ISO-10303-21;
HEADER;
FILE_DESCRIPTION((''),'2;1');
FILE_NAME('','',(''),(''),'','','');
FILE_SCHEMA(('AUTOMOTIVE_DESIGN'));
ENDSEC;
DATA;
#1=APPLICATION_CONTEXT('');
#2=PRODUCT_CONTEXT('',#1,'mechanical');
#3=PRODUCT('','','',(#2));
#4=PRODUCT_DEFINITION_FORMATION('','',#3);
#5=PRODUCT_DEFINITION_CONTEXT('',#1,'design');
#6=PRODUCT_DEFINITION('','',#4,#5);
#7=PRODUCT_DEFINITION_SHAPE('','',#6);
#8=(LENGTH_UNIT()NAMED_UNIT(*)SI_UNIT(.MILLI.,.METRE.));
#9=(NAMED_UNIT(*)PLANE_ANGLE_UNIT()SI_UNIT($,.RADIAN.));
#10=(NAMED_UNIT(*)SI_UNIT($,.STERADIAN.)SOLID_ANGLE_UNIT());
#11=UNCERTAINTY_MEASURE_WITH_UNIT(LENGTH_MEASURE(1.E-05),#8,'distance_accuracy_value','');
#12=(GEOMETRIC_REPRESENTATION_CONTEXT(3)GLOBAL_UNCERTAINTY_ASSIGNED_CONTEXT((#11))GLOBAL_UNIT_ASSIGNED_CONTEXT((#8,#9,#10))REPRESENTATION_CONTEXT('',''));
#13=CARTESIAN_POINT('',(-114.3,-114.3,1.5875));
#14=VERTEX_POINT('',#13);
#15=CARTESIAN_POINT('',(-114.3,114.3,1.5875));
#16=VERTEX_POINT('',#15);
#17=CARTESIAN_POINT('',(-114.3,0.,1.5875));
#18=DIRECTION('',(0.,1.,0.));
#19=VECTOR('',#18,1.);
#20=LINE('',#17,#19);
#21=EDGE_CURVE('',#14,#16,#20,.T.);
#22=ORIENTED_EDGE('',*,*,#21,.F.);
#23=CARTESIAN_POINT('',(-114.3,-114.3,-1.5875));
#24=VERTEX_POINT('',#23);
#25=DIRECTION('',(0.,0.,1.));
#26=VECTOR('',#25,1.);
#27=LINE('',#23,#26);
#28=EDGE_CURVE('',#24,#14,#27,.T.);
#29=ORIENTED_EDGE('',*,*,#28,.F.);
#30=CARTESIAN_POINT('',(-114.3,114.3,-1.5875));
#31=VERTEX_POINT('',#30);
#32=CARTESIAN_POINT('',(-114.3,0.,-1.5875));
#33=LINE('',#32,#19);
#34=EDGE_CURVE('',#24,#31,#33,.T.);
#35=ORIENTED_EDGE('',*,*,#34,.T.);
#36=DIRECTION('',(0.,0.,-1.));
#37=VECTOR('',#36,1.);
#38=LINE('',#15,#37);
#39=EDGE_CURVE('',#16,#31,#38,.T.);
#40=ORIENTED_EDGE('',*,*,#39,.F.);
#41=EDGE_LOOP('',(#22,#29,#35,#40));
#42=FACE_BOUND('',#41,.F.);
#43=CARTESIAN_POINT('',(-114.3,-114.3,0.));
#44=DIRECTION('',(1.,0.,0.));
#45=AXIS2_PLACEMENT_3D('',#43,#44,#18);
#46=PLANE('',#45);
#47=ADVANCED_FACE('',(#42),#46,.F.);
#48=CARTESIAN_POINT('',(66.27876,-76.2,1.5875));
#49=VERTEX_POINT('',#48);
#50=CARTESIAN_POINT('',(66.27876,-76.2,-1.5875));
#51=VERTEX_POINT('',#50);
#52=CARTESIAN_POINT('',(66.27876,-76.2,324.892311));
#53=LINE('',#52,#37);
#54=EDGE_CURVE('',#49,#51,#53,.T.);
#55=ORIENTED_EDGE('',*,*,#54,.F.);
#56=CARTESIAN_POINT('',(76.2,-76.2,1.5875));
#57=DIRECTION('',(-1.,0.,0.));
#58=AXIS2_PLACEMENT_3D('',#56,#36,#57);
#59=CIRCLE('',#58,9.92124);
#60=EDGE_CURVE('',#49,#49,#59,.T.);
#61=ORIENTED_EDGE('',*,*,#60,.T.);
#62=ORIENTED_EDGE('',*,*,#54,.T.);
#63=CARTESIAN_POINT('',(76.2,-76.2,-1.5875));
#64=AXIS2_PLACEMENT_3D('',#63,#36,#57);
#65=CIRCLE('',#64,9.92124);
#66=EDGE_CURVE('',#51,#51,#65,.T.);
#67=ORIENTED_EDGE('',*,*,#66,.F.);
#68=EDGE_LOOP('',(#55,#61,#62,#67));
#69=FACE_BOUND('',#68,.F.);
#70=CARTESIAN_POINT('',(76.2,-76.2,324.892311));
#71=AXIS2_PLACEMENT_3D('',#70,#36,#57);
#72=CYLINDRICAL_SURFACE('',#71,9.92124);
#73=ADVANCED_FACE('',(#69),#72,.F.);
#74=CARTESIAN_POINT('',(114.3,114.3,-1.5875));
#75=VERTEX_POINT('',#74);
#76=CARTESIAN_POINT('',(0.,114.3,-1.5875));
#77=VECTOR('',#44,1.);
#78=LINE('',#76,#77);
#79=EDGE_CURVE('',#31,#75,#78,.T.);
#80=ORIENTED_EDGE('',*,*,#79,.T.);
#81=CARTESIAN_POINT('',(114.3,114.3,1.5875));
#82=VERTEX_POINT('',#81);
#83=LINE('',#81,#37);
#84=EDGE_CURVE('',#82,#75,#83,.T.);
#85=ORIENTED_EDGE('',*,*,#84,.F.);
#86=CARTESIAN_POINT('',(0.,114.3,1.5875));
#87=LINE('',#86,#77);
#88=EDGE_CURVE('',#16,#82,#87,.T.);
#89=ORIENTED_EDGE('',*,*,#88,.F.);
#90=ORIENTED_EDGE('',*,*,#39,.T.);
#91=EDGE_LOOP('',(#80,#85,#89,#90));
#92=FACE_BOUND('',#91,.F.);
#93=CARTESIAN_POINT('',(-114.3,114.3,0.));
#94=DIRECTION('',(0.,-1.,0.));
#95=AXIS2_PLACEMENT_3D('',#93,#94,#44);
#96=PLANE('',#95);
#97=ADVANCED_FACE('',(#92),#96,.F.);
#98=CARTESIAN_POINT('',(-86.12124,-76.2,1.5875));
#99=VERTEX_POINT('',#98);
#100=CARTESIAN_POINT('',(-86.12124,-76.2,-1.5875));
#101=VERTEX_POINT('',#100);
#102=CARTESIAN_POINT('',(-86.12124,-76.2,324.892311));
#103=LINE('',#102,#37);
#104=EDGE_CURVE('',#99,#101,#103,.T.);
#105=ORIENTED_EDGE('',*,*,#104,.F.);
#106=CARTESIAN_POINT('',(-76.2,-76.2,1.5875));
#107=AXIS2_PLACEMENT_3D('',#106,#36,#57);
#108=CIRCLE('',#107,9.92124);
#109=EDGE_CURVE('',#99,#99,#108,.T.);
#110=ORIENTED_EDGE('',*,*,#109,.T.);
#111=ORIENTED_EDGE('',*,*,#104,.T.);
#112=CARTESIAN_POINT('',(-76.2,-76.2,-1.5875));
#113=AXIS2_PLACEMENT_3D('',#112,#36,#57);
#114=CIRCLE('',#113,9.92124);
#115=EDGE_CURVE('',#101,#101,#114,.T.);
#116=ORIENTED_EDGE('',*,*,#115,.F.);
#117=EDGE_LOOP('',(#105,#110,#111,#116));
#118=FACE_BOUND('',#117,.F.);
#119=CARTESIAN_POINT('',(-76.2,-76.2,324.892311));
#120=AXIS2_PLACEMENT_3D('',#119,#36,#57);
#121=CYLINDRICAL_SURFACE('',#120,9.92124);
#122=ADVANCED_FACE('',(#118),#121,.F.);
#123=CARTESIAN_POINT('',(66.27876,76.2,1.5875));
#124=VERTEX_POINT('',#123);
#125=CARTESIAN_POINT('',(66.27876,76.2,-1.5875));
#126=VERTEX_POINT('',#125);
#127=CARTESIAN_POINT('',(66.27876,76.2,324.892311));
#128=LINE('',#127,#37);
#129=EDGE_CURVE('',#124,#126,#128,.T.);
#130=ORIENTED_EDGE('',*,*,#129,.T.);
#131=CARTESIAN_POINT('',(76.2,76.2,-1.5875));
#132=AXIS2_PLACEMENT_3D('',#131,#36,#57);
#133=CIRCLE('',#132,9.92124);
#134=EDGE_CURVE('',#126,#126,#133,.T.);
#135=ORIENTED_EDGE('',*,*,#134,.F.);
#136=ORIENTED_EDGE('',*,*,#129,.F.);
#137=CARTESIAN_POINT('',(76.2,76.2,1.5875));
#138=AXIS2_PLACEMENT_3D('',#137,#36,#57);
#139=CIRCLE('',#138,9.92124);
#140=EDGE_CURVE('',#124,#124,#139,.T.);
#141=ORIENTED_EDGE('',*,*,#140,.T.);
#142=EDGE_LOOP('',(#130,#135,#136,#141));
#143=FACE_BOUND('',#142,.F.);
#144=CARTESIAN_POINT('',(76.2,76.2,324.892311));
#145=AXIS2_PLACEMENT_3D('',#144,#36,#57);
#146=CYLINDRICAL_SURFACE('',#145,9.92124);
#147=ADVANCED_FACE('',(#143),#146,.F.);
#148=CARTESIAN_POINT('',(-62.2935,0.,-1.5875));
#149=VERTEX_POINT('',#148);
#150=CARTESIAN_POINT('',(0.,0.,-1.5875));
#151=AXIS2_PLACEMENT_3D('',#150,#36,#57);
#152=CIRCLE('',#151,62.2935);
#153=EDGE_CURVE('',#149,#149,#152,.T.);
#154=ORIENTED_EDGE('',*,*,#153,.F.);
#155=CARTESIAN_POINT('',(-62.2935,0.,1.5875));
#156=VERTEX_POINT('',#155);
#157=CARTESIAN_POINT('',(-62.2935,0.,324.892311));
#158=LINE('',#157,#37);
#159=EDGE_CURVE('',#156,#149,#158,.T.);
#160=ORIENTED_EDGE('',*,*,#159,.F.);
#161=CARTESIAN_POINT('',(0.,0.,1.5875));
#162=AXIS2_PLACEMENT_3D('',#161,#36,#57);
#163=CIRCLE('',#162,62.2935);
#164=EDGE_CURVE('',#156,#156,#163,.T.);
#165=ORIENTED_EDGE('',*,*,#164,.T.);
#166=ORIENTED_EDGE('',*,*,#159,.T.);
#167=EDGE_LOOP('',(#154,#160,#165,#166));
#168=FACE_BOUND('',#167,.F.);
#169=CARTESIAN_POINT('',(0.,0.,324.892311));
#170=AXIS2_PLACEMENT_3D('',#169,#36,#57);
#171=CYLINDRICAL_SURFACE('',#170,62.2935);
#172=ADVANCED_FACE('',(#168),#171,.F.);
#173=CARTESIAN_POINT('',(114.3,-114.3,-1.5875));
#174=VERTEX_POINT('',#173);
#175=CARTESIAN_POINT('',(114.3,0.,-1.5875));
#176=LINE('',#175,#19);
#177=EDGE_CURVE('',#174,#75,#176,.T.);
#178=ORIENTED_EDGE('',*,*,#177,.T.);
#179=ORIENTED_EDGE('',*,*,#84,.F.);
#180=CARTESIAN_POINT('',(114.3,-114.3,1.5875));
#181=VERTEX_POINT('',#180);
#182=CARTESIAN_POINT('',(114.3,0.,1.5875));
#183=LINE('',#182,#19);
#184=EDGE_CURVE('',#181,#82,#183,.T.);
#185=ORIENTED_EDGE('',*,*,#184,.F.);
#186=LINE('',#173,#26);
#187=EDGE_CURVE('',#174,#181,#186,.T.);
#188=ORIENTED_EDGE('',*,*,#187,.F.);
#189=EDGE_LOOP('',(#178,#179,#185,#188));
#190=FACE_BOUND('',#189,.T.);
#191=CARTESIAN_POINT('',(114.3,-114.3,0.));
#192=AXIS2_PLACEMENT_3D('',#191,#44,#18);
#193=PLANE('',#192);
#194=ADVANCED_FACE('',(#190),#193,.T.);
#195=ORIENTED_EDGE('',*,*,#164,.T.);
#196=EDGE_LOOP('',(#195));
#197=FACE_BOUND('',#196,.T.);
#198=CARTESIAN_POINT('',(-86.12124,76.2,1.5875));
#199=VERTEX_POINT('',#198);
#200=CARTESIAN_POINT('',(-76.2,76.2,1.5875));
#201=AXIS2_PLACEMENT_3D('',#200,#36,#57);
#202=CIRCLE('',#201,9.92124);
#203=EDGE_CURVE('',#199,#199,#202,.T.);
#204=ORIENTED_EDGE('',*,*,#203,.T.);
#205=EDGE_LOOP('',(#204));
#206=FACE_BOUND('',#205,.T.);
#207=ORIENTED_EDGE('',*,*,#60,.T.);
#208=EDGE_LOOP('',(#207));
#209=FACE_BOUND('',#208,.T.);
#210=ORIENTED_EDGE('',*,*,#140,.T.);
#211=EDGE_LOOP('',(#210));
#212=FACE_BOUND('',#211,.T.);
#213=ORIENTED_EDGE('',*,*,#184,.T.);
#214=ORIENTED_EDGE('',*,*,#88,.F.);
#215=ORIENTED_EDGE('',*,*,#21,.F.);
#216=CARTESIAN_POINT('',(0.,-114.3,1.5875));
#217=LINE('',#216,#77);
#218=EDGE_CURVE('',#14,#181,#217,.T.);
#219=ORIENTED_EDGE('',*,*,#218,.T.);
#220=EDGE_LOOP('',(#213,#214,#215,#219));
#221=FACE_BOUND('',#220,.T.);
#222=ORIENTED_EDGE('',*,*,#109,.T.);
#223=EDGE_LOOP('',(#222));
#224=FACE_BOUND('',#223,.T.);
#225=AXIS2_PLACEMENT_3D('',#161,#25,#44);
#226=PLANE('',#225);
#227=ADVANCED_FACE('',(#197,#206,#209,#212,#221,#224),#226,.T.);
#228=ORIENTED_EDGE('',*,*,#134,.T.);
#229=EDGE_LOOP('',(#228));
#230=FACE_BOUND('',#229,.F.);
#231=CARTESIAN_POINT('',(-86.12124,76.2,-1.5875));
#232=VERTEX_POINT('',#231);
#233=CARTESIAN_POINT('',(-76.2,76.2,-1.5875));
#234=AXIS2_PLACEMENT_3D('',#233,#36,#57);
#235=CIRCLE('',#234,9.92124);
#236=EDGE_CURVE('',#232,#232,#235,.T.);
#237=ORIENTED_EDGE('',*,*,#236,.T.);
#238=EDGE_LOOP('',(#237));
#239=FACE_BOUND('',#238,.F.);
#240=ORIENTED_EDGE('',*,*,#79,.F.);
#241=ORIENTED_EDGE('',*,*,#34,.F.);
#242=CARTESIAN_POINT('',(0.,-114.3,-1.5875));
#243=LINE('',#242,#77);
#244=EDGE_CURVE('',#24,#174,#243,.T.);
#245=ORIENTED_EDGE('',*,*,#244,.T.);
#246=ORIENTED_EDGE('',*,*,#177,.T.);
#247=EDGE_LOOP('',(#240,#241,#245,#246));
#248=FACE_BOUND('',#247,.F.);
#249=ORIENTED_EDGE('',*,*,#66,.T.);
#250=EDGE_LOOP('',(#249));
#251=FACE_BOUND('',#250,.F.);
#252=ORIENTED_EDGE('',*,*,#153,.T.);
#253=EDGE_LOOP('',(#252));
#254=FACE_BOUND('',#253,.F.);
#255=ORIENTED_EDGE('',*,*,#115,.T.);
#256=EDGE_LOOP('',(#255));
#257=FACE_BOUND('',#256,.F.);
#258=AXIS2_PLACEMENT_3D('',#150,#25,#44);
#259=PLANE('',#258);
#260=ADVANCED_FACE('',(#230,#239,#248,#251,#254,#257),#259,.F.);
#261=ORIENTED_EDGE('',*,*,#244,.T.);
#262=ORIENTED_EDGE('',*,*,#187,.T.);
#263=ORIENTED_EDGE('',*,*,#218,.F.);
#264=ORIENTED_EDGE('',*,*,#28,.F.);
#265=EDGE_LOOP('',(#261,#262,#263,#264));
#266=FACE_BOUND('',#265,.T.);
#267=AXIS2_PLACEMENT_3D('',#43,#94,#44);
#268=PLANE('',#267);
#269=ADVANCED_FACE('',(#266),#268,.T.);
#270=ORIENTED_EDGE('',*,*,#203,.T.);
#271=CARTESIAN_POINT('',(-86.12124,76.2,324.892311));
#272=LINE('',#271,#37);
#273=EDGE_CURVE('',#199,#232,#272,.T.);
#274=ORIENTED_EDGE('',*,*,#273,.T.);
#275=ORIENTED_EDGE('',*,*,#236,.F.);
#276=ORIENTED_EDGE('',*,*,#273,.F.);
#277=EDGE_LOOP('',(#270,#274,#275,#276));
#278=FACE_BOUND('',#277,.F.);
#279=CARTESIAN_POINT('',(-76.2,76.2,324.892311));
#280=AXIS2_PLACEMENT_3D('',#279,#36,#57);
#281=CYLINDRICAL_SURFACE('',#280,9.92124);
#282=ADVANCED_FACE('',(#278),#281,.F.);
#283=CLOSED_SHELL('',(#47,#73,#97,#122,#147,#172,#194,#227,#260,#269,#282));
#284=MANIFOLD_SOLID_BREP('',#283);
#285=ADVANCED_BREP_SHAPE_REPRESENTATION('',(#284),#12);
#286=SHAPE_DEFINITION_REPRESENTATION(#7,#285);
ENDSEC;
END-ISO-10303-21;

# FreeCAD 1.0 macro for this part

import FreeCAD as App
import Part
import Sketcher

V = App.Vector
Q = App.Units.Quantity


def add_polygon(sketch, points):
    """Adds a closed chain of lines whose ends are joined by coincident constraints."""
    first, n = sketch.GeometryCount, len(points)
    for a, b in zip(points, points[1:] + points[:1]):
        sketch.addGeometry(Part.LineSegment(App.Vector(*a, 0), App.Vector(*b, 0)), False)
    for i in range(n):
        sketch.addConstraint(Sketcher.Constraint("Coincident", first + i, 2, first + (i + 1) % n, 1))

doc = App.newDocument("Part")
body = doc.addObject("PartDesign::Body", "Body")

# Sketch on XY plane
sketch1 = body.newObject("Sketcher::SketchObject", "Sketch")
sketch1.AttachmentSupport = (doc.getObject("XY_Plane"), [""])
sketch1.MapMode = "FlatFace"
add_polygon(sketch1, [(-114.3, 114.3), (-114.3, -114.3), (114.3, -114.3), (114.3, 114.3)])  # lines 0-3
sketch1.addConstraint(Sketcher.Constraint("Vertical", 0))
sketch1.addConstraint(Sketcher.Constraint("Horizontal", 1))
sketch1.addConstraint(Sketcher.Constraint("Vertical", 2))
sketch1.addConstraint(Sketcher.Constraint("Horizontal", 3))
sketch1.addConstraint(Sketcher.Constraint("Symmetric", 0, 2, 2, 2, -1, 1))
sketch1.addConstraint(Sketcher.Constraint("Equal", 3, 0))
sketch1.addConstraint(Sketcher.Constraint("DistanceX", 1, 1, 1, 2, Q("9 in")))
pad1 = body.newObject("PartDesign::Pad", "Pad")
pad1.Profile = sketch1
pad1.Length = Q("0.125 in")
pad1.Midplane = True

# Sketch on XY plane
sketch2 = body.newObject("Sketcher::SketchObject", "Sketch001")
sketch2.AttachmentSupport = (doc.getObject("XY_Plane"), [""])
sketch2.MapMode = "FlatFace"
sketch2.AttachmentOffset = App.Placement(V(0, 0, 0.0625 * 25.4), App.Rotation())
sketch2.addGeometry(Part.Circle(V(-76.2, 76.2, 0), V(0, 0, 1), 9.92124), False)
sketch2.addGeometry(Part.Circle(V(76.2, 76.2, 0), V(0, 0, 1), 9.92124), False)
sketch2.addGeometry(Part.Circle(V(-76.2, -76.2, 0), V(0, 0, 1), 9.92124), False)
sketch2.addGeometry(Part.Circle(V(76.2, -76.2, 0), V(0, 0, 1), 9.92124), False)
sketch2.addConstraint(Sketcher.Constraint("Equal", 0, 1))
sketch2.addConstraint(Sketcher.Constraint("Equal", 1, 2))
sketch2.addConstraint(Sketcher.Constraint("Equal", 2, 3))
sketch2.addConstraint(Sketcher.Constraint("Symmetric", 1, 3, 2, 3, -1, 1))
sketch2.addConstraint(Sketcher.Constraint("Symmetric", 0, 3, 3, 3, -1, 1))
sketch2.addConstraint(Sketcher.Constraint("Symmetric", 0, 3, 1, 3, -2))
sketch2.addConstraint(Sketcher.Constraint("DistanceX", 0, 3, -1, 1, Q("3 in")))
sketch2.addConstraint(Sketcher.Constraint("DistanceY", -1, 1, 0, 3, Q("3 in")))
sketch2.addConstraint(Sketcher.Constraint("Diameter", 0, Q("0.7812 in")))
doc.recompute()
hole = body.newObject("PartDesign::Hole", "Hole")
hole.Profile = sketch2
hole.ThreadType = "None"
hole.Diameter = Q("0.7812 in")
hole.DepthType = "ThroughAll"

# Sketch on XY plane
sketch3 = body.newObject("Sketcher::SketchObject", "Sketch002")
sketch3.AttachmentSupport = (doc.getObject("XY_Plane"), [""])
sketch3.MapMode = "FlatFace"
sketch3.AttachmentOffset = App.Placement(V(0, 0, 0.0625 * 25.4), App.Rotation())
sketch3.addGeometry(Part.Circle(V(0, 0, 0), V(0, 0, 1), 62.2935), False)
sketch3.addConstraint(Sketcher.Constraint("Coincident", 0, 3, -1, 1))
sketch3.addConstraint(Sketcher.Constraint("Diameter", 0, Q("4.905 in")))
doc.recompute()
hole2 = body.newObject("PartDesign::Hole", "Hole001")
hole2.Profile = sketch3
hole2.ThreadType = "None"
hole2.Diameter = Q("4.905 in")
hole2.DepthType = "ThroughAll"

doc.recompute()
